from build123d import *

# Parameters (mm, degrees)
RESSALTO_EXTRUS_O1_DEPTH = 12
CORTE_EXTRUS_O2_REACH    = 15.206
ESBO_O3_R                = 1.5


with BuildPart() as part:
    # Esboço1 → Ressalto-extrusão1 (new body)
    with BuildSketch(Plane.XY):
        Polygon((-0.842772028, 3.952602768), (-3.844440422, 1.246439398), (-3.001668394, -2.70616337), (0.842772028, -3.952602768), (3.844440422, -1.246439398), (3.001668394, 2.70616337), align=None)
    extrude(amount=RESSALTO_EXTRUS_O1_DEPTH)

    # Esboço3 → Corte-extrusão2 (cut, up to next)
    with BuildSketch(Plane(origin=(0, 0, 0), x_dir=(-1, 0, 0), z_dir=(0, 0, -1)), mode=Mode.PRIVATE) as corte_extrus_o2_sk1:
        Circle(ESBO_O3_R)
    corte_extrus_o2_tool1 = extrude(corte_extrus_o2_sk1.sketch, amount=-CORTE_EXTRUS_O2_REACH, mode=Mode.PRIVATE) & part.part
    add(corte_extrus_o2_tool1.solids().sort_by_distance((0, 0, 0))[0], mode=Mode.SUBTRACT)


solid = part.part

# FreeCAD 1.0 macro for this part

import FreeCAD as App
import Part
import Sketcher

V = App.Vector
Q = App.Units.Quantity


def add_polygon(sketch, points):
    """Adds a closed chain of lines whose ends are joined by coincident constraints."""
    first, n = sketch.GeometryCount, len(points)
    for a, b in zip(points, points[1:] + points[:1]):
        sketch.addGeometry(Part.LineSegment(App.Vector(*a, 0), App.Vector(*b, 0)), False)
    for i in range(n):
        sketch.addConstraint(Sketcher.Constraint("Coincident", first + i, 2, first + (i + 1) % n, 1))

doc = App.newDocument("Part")
body = doc.addObject("PartDesign::Body", "Body")

sketch1 = doc.addObject("Sketcher::SketchObject", "Sketch")
body.addObject(sketch1)
sketch1.AttachmentSupport = (doc.XY_Plane, [""])
sketch1.MapMode = "FlatFace"
add_polygon(sketch1, [(-0.8, 4), (-3.8, 1.2), (-3, -2.7), (0.8, -4), (3.8, -1.2), (3, 2.7)])
sketch1.addConstraint([
    Sketcher.Constraint("Symmetric", 0, 2, 3, 2, -1, 1),
    Sketcher.Constraint("Symmetric", 1, 2, 4, 2, -1, 1),
    Sketcher.Constraint("Symmetric", 2, 2, 5, 2, -1, 1),
    Sketcher.Constraint("Equal", 0, 1),
    Sketcher.Constraint("Equal", 1, 2),
    Sketcher.Constraint("Distance", 0, Q("4.041452 mm")),
    Sketcher.Constraint("DistanceX", 0, 2, -1, 1, Q("3.84444 mm")),
    Sketcher.Constraint("DistanceY", -1, 1, 0, 2, Q("1.246439 mm")),
    Sketcher.Constraint("DistanceX", 1, 2, -1, 1, Q("3.001668 mm")),
])
pad1 = doc.addObject("PartDesign::Pad", "Pad")
body.addObject(pad1)
pad1.Profile = sketch1
pad1.Length = 12

sketch2 = doc.addObject("Sketcher::SketchObject", "Sketch001")
body.addObject(sketch2)
sketch2.AttachmentSupport = (doc.XY_Plane, [""])
sketch2.MapMode = "FlatFace"
sketch2.addGeometry(Part.Circle(V(0, 0, 0), V(0, 0, 1), 1.5), False)
sketch2.addConstraint([
    Sketcher.Constraint("Coincident", 0, 3, -1, 1),
    Sketcher.Constraint("Diameter", 0, Q("3 mm")),
])
pocket1 = doc.addObject("PartDesign::Pocket", "Pocket")
body.addObject(pocket1)
pocket1.Profile = sketch2
pocket1.Type = "UpToFirst"
pocket1.Reversed = True

doc.recompute()
